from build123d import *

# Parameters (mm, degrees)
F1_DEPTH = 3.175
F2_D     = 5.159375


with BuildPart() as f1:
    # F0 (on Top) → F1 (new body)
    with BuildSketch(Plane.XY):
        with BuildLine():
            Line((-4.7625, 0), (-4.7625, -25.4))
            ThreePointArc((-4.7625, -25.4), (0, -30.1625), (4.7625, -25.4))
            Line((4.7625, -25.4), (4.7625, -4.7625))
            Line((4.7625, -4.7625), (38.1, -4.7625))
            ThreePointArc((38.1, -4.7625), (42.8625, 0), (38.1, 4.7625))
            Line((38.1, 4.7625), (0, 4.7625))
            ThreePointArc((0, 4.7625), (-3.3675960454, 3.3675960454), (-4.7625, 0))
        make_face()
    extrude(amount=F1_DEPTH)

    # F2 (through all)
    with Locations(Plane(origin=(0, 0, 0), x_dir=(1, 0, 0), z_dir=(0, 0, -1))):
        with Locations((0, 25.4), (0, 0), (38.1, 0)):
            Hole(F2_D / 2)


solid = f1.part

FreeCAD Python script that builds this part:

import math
import FreeCAD as App
import Part
import Sketcher
Q = App.Units.Quantity

doc = App.newDocument("Part")
body = doc.addObject("PartDesign::Body", "Body")

# Sketch on XY plane
sketch1 = body.newObject("Sketcher::SketchObject", "Sketch")
sketch1.AttachmentSupport = (doc.getObject("XY_Plane"), [""])
sketch1.MapMode = "FlatFace"
sketch1.addGeometry([
    Part.LineSegment(App.Vector(-4.8, 0, 0), App.Vector(-4.8, -25.4, 0)),  # 0
    Part.ArcOfCircle(Part.Circle(App.Vector(0, -25.4, 0), App.Vector(0, 0, 1), 4.8), math.radians(180), math.radians(360)),  # 1
    Part.LineSegment(App.Vector(4.8, -25.4, 0), App.Vector(4.8, -4.8, 0)),  # 2
    Part.LineSegment(App.Vector(4.8, -4.8, 0), App.Vector(38.1, -4.8, 0)),  # 3
    Part.ArcOfCircle(Part.Circle(App.Vector(38.1, 0, 0), App.Vector(0, 0, 1), 4.8), math.radians(-90), math.radians(90)),  # 4
    Part.LineSegment(App.Vector(38.1, 4.8, 0), App.Vector(0, 4.8, 0)),  # 5
    Part.ArcOfCircle(Part.Circle(App.Vector(0, 0, 0), App.Vector(0, 0, 1), 4.8), math.radians(90), math.radians(180)),  # 6
], False)
sketch1.addConstraint([
    Sketcher.Constraint("Tangent", 0, 2, 1, 1),
    Sketcher.Constraint("Tangent", 1, 2, 2, 1),
    Sketcher.Constraint("Coincident", 2, 2, 3, 1),
    Sketcher.Constraint("Tangent", 3, 2, 4, 1),
    Sketcher.Constraint("Tangent", 4, 2, 5, 1),
    Sketcher.Constraint("Tangent", 5, 2, 6, 1),
    Sketcher.Constraint("Tangent", 6, 2, 0, 1),
    Sketcher.Constraint("Vertical", 0),
    Sketcher.Constraint("Vertical", 2),
    Sketcher.Constraint("Horizontal", 3),
    Sketcher.Constraint("Horizontal", 5),
    Sketcher.Constraint("Coincident", 6, 3, -1, 1),
    Sketcher.Constraint("Equal", 1, 4),
    Sketcher.Constraint("Equal", 4, 6),
    Sketcher.Constraint("DistanceY", 0, 2, 0, 1, Q("1 in")),
    Sketcher.Constraint("DistanceX", 5, 2, 5, 1, Q("1.5 in")),
    Sketcher.Constraint("Radius", 1, Q("0.1875 in")),
])
pad1 = body.newObject("PartDesign::Pad", "Pad")
pad1.Profile = sketch1
pad1.Length = Q("0.125 in")

# Sketch on XY plane
sketch2 = body.newObject("Sketcher::SketchObject", "Sketch001")
sketch2.AttachmentSupport = (doc.getObject("XY_Plane"), [""])
sketch2.MapMode = "FlatFace"
sketch2.addGeometry([
    Part.Circle(App.Vector(0, -25.4, 0), App.Vector(0, 0, 1), 2.6),
    Part.Circle(App.Vector(0, 0, 0), App.Vector(0, 0, 1), 2.6),
    Part.Circle(App.Vector(38.1, 0, 0), App.Vector(0, 0, 1), 2.6),
], False)
sketch2.addConstraint([
    Sketcher.Constraint("Coincident", 1, 3, -1, 1),
    Sketcher.Constraint("Equal", 0, 1),
    Sketcher.Constraint("Equal", 1, 2),
    Sketcher.Constraint("PointOnObject", 0, 3, -2),
    Sketcher.Constraint("PointOnObject", 2, 3, -1),
    Sketcher.Constraint("Diameter", 0, Q("0.203125 in")),
    Sketcher.Constraint("DistanceY", 0, 3, -1, 1, Q("1 in")),
    Sketcher.Constraint("DistanceX", -1, 1, 2, 3, Q("1.5 in")),
])
doc.recompute()
hole = body.newObject("PartDesign::Hole", "Hole")
hole.Profile = sketch2
hole.ThreadType = "None"
hole.Diameter = Q("0.203125 in")
hole.DepthType = "ThroughAll"
hole.Reversed = True

doc.recompute()
